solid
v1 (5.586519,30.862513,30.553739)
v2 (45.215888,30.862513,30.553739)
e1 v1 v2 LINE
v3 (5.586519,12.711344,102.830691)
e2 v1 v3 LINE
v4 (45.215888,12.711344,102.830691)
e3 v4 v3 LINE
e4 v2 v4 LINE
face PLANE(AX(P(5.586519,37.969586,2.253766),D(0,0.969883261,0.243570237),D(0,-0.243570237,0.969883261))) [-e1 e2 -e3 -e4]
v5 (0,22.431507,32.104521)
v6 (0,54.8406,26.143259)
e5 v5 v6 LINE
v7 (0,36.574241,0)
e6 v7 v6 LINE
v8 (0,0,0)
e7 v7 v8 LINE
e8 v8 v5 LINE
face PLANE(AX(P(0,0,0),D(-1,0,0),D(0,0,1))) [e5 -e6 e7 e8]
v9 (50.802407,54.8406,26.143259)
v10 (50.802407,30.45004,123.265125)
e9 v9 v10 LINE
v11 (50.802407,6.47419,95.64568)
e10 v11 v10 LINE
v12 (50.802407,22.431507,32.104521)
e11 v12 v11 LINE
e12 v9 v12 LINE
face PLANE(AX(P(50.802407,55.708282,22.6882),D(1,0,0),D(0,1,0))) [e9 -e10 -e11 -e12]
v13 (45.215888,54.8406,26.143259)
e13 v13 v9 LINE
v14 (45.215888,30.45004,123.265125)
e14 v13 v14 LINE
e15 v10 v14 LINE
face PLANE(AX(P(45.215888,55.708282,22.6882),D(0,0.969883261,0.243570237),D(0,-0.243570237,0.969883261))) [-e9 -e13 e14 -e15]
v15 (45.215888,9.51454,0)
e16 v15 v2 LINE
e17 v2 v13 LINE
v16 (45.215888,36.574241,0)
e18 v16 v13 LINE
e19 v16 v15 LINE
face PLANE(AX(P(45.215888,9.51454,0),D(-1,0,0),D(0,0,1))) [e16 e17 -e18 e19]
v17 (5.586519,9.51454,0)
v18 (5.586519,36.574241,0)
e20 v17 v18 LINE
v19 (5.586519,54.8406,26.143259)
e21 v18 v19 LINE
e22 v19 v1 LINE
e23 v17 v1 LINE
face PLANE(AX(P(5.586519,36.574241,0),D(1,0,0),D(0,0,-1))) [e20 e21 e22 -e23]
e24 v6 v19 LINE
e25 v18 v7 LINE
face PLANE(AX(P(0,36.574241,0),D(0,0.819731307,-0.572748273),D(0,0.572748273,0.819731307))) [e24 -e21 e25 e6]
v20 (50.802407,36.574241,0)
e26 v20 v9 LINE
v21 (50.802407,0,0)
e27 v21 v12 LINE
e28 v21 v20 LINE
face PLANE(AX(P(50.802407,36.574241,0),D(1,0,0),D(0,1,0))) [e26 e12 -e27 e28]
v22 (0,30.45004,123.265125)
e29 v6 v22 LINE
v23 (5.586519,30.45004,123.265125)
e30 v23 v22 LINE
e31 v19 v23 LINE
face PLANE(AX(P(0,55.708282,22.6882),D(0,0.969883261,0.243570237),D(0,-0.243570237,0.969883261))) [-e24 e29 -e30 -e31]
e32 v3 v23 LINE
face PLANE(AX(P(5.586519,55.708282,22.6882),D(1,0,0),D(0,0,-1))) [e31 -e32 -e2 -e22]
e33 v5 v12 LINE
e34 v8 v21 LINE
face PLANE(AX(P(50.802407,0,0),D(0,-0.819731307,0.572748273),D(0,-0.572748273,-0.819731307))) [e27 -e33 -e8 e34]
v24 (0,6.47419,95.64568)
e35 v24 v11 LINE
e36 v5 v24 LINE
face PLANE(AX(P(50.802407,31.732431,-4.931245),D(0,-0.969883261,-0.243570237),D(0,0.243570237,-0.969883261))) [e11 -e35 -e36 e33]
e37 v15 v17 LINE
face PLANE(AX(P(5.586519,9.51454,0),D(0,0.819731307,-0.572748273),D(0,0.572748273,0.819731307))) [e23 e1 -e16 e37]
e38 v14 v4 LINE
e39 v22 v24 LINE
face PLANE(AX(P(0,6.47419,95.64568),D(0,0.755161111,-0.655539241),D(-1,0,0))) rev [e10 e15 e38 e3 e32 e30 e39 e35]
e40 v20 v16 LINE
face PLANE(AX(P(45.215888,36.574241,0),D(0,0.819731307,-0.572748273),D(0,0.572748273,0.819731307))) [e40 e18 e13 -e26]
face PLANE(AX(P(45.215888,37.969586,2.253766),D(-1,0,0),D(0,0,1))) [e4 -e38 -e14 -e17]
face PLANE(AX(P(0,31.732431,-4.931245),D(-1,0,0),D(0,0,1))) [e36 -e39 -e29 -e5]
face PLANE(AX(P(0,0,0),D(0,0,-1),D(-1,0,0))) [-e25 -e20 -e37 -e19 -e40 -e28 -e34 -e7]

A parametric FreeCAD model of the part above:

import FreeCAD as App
import Part
import Sketcher
from FreeCAD import Vector


def add_polygon(sketch, points):
    """Adds a closed chain of lines whose ends are joined by coincident constraints."""
    first, n = sketch.GeometryCount, len(points)
    for a, b in zip(points, points[1:] + points[:1]):
        sketch.addGeometry(Part.LineSegment(App.Vector(*a, 0), App.Vector(*b, 0)), False)
    for i in range(n):
        sketch.addConstraint(Sketcher.Constraint("Coincident", first + i, 2, first + (i + 1) % n, 1))

doc = App.newDocument("Part")
body = doc.addObject("PartDesign::Body", "Body")

sketch1 = body.newObject("Sketcher::SketchObject", "Sketch")
sketch1.AttachmentSupport = (doc.getObject("XY_Plane"), [""])
sketch1.MapMode = "FlatFace"
add_polygon(sketch1, [(0, 36.574241), (0, 0), (50.802407, 0), (50.802407, 36.574241), (45.215888, 36.574241), (45.215888, 9.51454), (5.586519, 9.51454), (5.586519, 36.574241)])
sketch1.addConstraint(Sketcher.Constraint("Vertical", 0))
sketch1.addConstraint(Sketcher.Constraint("Horizontal", 1))
sketch1.addConstraint(Sketcher.Constraint("Vertical", 2))
sketch1.addConstraint(Sketcher.Constraint("Horizontal", 3))
sketch1.addConstraint(Sketcher.Constraint("Vertical", 4))
sketch1.addConstraint(Sketcher.Constraint("Horizontal", 5))
sketch1.addConstraint(Sketcher.Constraint("Vertical", 6))
sketch1.addConstraint(Sketcher.Constraint("Horizontal", 7))
sketch1.addConstraint(Sketcher.Constraint("Coincident", 0, 2, -1, 1))
sketch1.addConstraint(Sketcher.Constraint("Horizontal", 3, 2, 6, 2))
sketch1.addConstraint(Sketcher.Constraint("Equal", 3, 7))
sketch1.addConstraint(Sketcher.Constraint("DistanceY", 4, 2, 4, 1, 27.059701))
sketch1.addConstraint(Sketcher.Constraint("DistanceX", 3, 2, 3, 1, 5.586519))
sketch1.addConstraint(Sketcher.Constraint("DistanceX", 5, 2, 5, 1, 39.629369))
sketch1.addConstraint(Sketcher.Constraint("DistanceY", 0, 2, 0, 1, 36.574241))

sketch2 = body.newObject("Sketcher::SketchObject", "Sketch001")
sketch2.AttachmentSupport = (doc.getObject("YZ_Plane"), [""])
sketch2.MapMode = "FlatFace"
sketch2.addGeometry(Part.LineSegment(Vector(0, 0, 0), Vector(22.431507, 32.104521, 0)), False)
sketch2.addGeometry(Part.LineSegment(Vector(22.431507, 32.104521, 0), Vector(6.47419, 95.64568, 0)), False)
sketch2.addConstraint(Sketcher.Constraint("Coincident", 0, 2, 1, 1))
sketch2.addConstraint(Sketcher.Constraint("Coincident", 0, 1, -1, 1))
sketch2.addConstraint(Sketcher.Constraint("Distance", 0, 39.164688))
sketch2.addConstraint(Sketcher.Constraint("DistanceY", -1, 1, 0, 2, 32.104521))
sketch2.addConstraint(Sketcher.Constraint("DistanceX", -1, 1, 1, 2, 6.47419))
sketch2.addConstraint(Sketcher.Constraint("DistanceY", -1, 1, 1, 2, 95.64568))
doc.recompute()

additivepipe = body.newObject("PartDesign::AdditivePipe", "AdditivePipe")
additivepipe.Profile = sketch1
additivepipe.Spine = (sketch2, ["Edge1", "Edge2"])
additivepipe.Transition = "Right corner"

doc.recompute()
